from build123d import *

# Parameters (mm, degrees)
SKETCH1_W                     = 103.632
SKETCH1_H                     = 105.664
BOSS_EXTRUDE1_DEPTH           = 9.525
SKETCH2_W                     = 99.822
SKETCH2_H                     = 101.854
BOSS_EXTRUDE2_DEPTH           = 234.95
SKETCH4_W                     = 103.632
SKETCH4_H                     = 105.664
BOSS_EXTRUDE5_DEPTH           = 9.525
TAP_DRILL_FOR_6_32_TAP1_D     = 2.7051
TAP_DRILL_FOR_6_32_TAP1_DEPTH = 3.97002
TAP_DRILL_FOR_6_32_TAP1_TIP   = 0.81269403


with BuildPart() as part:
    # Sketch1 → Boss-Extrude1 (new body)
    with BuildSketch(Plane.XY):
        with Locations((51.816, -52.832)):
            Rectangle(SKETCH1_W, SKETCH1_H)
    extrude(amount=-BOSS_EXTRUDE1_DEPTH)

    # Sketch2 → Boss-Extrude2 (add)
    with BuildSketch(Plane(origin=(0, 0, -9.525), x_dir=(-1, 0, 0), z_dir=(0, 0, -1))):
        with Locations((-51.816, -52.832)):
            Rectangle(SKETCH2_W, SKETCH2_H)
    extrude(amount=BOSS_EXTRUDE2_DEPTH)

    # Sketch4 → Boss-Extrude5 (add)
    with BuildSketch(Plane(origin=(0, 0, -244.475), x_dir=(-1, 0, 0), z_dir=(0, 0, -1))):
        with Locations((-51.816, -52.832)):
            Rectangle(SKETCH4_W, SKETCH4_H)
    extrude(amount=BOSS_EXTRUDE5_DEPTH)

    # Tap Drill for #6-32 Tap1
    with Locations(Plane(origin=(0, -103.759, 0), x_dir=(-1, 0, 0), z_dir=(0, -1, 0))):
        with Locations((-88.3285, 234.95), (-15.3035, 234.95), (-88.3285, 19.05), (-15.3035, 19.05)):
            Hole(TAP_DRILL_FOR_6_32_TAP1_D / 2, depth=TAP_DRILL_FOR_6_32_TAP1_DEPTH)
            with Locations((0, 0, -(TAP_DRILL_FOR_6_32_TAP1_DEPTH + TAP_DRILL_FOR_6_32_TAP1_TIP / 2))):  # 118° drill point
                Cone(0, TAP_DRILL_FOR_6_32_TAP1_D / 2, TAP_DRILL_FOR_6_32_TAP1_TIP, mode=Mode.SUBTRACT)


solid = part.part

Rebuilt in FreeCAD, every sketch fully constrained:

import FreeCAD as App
import Part
import Sketcher
from FreeCAD import Vector
Q = App.Units.Quantity

doc = App.newDocument("Part")
body = doc.addObject("PartDesign::Body", "Body")

sketch1 = doc.addObject("Sketcher::SketchObject", "Sketch")
body.addObject(sketch1)
sketch1.AttachmentSupport = (doc.XY_Plane, [""])
sketch1.MapMode = "FlatFace"
sketch1.addGeometry([
    Part.LineSegment(Vector(0, 0, 0), Vector(0, -106, 0)),
    Part.LineSegment(Vector(0, -106, 0), Vector(104, -106, 0)),
    Part.LineSegment(Vector(104, -106, 0), Vector(104, 0, 0)),
    Part.LineSegment(Vector(104, 0, 0), Vector(0, 0, 0)),
], False)
sketch1.addConstraint([
    Sketcher.Constraint("Coincident", 0, 2, 1, 1),
    Sketcher.Constraint("Coincident", 1, 2, 2, 1),
    Sketcher.Constraint("Coincident", 2, 2, 3, 1),
    Sketcher.Constraint("Coincident", 3, 2, 0, 1),
    Sketcher.Constraint("Vertical", 0),
    Sketcher.Constraint("Horizontal", 1),
    Sketcher.Constraint("Vertical", 2),
    Sketcher.Constraint("Horizontal", 3),
    Sketcher.Constraint("Coincident", 3, 2, -1, 1),
    Sketcher.Constraint("DistanceX", 1, 1, 1, 2, Q("4.08 in")),
    Sketcher.Constraint("DistanceY", 0, 2, 0, 1, Q("4.16 in")),
])
pad1 = doc.addObject("PartDesign::Pad", "Pad")
body.addObject(pad1)
pad1.Profile = sketch1
pad1.Length = Q("0.375 in")
pad1.Reversed = True

sketch2 = doc.addObject("Sketcher::SketchObject", "Sketch001")
body.addObject(sketch2)
sketch2.AttachmentSupport = (doc.XY_Plane, [""])
sketch2.MapMode = "FlatFace"
sketch2.AttachmentOffset = App.Placement(Vector(0, 0, -0.375 * 25.4), App.Rotation())
sketch2.addGeometry([
    Part.LineSegment(Vector(102, -2, 0), Vector(102, -104, 0)),
    Part.LineSegment(Vector(102, -104, 0), Vector(2, -104, 0)),
    Part.LineSegment(Vector(2, -104, 0), Vector(2, -2, 0)),
    Part.LineSegment(Vector(2, -2, 0), Vector(102, -2, 0)),
], False)
sketch2.addConstraint([
    Sketcher.Constraint("Coincident", 0, 2, 1, 1),
    Sketcher.Constraint("Coincident", 1, 2, 2, 1),
    Sketcher.Constraint("Coincident", 2, 2, 3, 1),
    Sketcher.Constraint("Coincident", 3, 2, 0, 1),
    Sketcher.Constraint("Vertical", 0),
    Sketcher.Constraint("Horizontal", 1),
    Sketcher.Constraint("Vertical", 2),
    Sketcher.Constraint("Horizontal", 3),
    Sketcher.Constraint("DistanceX", 1, 2, 1, 1, Q("3.93 in")),
    Sketcher.Constraint("DistanceY", 0, 2, 0, 1, Q("4.01 in")),
    Sketcher.Constraint("DistanceX", -1, 1, 0, 2, Q("4.005 in")),
    Sketcher.Constraint("DistanceY", 0, 2, -1, 1, Q("4.085 in")),
])
pad2 = doc.addObject("PartDesign::Pad", "Pad001")
body.addObject(pad2)
pad2.Profile = sketch2
pad2.Length = Q("9.25 in")
pad2.Reversed = True

sketch3 = doc.addObject("Sketcher::SketchObject", "Sketch002")
body.addObject(sketch3)
sketch3.AttachmentSupport = (doc.XY_Plane, [""])
sketch3.MapMode = "FlatFace"
sketch3.AttachmentOffset = App.Placement(Vector(0, 0, -9.625 * 25.4), App.Rotation())
sketch3.addGeometry([
    Part.LineSegment(Vector(104, 0, 0), Vector(104, -106, 0)),
    Part.LineSegment(Vector(104, -106, 0), Vector(0, -106, 0)),
    Part.LineSegment(Vector(0, -106, 0), Vector(0, 0, 0)),
    Part.LineSegment(Vector(0, 0, 0), Vector(104, 0, 0)),
], False)
sketch3.addConstraint([
    Sketcher.Constraint("Coincident", 0, 2, 1, 1),
    Sketcher.Constraint("Coincident", 1, 2, 2, 1),
    Sketcher.Constraint("Coincident", 2, 2, 3, 1),
    Sketcher.Constraint("Coincident", 3, 2, 0, 1),
    Sketcher.Constraint("Vertical", 0),
    Sketcher.Constraint("Horizontal", 1),
    Sketcher.Constraint("Vertical", 2),
    Sketcher.Constraint("Horizontal", 3),
    Sketcher.Constraint("Coincident", 2, 2, -1, 1),
    Sketcher.Constraint("DistanceX", 1, 2, 1, 1, Q("4.08 in")),
    Sketcher.Constraint("DistanceY", 0, 2, 0, 1, Q("4.16 in")),
])
pad3 = doc.addObject("PartDesign::Pad", "Pad002")
body.addObject(pad3)
pad3.Profile = sketch3
pad3.Length = Q("0.375 in")
pad3.Reversed = True

sketch4 = doc.addObject("Sketcher::SketchObject", "Sketch003")
body.addObject(sketch4)
sketch4.AttachmentSupport = (doc.XZ_Plane, [""])
sketch4.MapMode = "FlatFace"
sketch4.AttachmentOffset = App.Placement(Vector(0, 0, 4.085 * 25.4), App.Rotation())
sketch4.addGeometry([
    Part.Circle(Vector(88.3, -234.9, 0), Vector(0, 0, 1), 1.4),
    Part.Circle(Vector(15.3, -234.9, 0), Vector(0, 0, 1), 1.4),
    Part.Circle(Vector(88.3, -19.1, 0), Vector(0, 0, 1), 1.4),
    Part.Circle(Vector(15.3, -19.1, 0), Vector(0, 0, 1), 1.4),
], False)
sketch4.addConstraint([
    Sketcher.Constraint("Equal", 0, 1),
    Sketcher.Constraint("Equal", 1, 2),
    Sketcher.Constraint("Equal", 2, 3),
    Sketcher.Constraint("Horizontal", 0, 3, 1, 3),
    Sketcher.Constraint("Horizontal", 2, 3, 3, 3),
    Sketcher.Constraint("Vertical", 0, 3, 2, 3),
    Sketcher.Constraint("Vertical", 1, 3, 3, 3),
    Sketcher.Constraint("Diameter", 0, Q("0.1065 in")),
    Sketcher.Constraint("DistanceY", 0, 3, 2, 3, Q("8.5 in")),
    Sketcher.Constraint("DistanceY", 0, 3, -1, 1, Q("9.25 in")),
    Sketcher.Constraint("DistanceX", 1, 3, 0, 3, Q("2.875 in")),
    Sketcher.Constraint("DistanceX", -1, 1, 0, 3, Q("3.4775 in")),
])
doc.recompute()
hole = doc.addObject("PartDesign::Hole", "Hole")
body.addObject(hole)
hole.Profile = sketch4
hole.ThreadType = "None"
hole.Diameter = Q("0.1065 in")
hole.DepthType = "Dimension"
hole.Depth = Q("0.1563 in")
hole.DrillPoint = "Angled"
hole.DrillPointAngle = 118

doc.recompute()
